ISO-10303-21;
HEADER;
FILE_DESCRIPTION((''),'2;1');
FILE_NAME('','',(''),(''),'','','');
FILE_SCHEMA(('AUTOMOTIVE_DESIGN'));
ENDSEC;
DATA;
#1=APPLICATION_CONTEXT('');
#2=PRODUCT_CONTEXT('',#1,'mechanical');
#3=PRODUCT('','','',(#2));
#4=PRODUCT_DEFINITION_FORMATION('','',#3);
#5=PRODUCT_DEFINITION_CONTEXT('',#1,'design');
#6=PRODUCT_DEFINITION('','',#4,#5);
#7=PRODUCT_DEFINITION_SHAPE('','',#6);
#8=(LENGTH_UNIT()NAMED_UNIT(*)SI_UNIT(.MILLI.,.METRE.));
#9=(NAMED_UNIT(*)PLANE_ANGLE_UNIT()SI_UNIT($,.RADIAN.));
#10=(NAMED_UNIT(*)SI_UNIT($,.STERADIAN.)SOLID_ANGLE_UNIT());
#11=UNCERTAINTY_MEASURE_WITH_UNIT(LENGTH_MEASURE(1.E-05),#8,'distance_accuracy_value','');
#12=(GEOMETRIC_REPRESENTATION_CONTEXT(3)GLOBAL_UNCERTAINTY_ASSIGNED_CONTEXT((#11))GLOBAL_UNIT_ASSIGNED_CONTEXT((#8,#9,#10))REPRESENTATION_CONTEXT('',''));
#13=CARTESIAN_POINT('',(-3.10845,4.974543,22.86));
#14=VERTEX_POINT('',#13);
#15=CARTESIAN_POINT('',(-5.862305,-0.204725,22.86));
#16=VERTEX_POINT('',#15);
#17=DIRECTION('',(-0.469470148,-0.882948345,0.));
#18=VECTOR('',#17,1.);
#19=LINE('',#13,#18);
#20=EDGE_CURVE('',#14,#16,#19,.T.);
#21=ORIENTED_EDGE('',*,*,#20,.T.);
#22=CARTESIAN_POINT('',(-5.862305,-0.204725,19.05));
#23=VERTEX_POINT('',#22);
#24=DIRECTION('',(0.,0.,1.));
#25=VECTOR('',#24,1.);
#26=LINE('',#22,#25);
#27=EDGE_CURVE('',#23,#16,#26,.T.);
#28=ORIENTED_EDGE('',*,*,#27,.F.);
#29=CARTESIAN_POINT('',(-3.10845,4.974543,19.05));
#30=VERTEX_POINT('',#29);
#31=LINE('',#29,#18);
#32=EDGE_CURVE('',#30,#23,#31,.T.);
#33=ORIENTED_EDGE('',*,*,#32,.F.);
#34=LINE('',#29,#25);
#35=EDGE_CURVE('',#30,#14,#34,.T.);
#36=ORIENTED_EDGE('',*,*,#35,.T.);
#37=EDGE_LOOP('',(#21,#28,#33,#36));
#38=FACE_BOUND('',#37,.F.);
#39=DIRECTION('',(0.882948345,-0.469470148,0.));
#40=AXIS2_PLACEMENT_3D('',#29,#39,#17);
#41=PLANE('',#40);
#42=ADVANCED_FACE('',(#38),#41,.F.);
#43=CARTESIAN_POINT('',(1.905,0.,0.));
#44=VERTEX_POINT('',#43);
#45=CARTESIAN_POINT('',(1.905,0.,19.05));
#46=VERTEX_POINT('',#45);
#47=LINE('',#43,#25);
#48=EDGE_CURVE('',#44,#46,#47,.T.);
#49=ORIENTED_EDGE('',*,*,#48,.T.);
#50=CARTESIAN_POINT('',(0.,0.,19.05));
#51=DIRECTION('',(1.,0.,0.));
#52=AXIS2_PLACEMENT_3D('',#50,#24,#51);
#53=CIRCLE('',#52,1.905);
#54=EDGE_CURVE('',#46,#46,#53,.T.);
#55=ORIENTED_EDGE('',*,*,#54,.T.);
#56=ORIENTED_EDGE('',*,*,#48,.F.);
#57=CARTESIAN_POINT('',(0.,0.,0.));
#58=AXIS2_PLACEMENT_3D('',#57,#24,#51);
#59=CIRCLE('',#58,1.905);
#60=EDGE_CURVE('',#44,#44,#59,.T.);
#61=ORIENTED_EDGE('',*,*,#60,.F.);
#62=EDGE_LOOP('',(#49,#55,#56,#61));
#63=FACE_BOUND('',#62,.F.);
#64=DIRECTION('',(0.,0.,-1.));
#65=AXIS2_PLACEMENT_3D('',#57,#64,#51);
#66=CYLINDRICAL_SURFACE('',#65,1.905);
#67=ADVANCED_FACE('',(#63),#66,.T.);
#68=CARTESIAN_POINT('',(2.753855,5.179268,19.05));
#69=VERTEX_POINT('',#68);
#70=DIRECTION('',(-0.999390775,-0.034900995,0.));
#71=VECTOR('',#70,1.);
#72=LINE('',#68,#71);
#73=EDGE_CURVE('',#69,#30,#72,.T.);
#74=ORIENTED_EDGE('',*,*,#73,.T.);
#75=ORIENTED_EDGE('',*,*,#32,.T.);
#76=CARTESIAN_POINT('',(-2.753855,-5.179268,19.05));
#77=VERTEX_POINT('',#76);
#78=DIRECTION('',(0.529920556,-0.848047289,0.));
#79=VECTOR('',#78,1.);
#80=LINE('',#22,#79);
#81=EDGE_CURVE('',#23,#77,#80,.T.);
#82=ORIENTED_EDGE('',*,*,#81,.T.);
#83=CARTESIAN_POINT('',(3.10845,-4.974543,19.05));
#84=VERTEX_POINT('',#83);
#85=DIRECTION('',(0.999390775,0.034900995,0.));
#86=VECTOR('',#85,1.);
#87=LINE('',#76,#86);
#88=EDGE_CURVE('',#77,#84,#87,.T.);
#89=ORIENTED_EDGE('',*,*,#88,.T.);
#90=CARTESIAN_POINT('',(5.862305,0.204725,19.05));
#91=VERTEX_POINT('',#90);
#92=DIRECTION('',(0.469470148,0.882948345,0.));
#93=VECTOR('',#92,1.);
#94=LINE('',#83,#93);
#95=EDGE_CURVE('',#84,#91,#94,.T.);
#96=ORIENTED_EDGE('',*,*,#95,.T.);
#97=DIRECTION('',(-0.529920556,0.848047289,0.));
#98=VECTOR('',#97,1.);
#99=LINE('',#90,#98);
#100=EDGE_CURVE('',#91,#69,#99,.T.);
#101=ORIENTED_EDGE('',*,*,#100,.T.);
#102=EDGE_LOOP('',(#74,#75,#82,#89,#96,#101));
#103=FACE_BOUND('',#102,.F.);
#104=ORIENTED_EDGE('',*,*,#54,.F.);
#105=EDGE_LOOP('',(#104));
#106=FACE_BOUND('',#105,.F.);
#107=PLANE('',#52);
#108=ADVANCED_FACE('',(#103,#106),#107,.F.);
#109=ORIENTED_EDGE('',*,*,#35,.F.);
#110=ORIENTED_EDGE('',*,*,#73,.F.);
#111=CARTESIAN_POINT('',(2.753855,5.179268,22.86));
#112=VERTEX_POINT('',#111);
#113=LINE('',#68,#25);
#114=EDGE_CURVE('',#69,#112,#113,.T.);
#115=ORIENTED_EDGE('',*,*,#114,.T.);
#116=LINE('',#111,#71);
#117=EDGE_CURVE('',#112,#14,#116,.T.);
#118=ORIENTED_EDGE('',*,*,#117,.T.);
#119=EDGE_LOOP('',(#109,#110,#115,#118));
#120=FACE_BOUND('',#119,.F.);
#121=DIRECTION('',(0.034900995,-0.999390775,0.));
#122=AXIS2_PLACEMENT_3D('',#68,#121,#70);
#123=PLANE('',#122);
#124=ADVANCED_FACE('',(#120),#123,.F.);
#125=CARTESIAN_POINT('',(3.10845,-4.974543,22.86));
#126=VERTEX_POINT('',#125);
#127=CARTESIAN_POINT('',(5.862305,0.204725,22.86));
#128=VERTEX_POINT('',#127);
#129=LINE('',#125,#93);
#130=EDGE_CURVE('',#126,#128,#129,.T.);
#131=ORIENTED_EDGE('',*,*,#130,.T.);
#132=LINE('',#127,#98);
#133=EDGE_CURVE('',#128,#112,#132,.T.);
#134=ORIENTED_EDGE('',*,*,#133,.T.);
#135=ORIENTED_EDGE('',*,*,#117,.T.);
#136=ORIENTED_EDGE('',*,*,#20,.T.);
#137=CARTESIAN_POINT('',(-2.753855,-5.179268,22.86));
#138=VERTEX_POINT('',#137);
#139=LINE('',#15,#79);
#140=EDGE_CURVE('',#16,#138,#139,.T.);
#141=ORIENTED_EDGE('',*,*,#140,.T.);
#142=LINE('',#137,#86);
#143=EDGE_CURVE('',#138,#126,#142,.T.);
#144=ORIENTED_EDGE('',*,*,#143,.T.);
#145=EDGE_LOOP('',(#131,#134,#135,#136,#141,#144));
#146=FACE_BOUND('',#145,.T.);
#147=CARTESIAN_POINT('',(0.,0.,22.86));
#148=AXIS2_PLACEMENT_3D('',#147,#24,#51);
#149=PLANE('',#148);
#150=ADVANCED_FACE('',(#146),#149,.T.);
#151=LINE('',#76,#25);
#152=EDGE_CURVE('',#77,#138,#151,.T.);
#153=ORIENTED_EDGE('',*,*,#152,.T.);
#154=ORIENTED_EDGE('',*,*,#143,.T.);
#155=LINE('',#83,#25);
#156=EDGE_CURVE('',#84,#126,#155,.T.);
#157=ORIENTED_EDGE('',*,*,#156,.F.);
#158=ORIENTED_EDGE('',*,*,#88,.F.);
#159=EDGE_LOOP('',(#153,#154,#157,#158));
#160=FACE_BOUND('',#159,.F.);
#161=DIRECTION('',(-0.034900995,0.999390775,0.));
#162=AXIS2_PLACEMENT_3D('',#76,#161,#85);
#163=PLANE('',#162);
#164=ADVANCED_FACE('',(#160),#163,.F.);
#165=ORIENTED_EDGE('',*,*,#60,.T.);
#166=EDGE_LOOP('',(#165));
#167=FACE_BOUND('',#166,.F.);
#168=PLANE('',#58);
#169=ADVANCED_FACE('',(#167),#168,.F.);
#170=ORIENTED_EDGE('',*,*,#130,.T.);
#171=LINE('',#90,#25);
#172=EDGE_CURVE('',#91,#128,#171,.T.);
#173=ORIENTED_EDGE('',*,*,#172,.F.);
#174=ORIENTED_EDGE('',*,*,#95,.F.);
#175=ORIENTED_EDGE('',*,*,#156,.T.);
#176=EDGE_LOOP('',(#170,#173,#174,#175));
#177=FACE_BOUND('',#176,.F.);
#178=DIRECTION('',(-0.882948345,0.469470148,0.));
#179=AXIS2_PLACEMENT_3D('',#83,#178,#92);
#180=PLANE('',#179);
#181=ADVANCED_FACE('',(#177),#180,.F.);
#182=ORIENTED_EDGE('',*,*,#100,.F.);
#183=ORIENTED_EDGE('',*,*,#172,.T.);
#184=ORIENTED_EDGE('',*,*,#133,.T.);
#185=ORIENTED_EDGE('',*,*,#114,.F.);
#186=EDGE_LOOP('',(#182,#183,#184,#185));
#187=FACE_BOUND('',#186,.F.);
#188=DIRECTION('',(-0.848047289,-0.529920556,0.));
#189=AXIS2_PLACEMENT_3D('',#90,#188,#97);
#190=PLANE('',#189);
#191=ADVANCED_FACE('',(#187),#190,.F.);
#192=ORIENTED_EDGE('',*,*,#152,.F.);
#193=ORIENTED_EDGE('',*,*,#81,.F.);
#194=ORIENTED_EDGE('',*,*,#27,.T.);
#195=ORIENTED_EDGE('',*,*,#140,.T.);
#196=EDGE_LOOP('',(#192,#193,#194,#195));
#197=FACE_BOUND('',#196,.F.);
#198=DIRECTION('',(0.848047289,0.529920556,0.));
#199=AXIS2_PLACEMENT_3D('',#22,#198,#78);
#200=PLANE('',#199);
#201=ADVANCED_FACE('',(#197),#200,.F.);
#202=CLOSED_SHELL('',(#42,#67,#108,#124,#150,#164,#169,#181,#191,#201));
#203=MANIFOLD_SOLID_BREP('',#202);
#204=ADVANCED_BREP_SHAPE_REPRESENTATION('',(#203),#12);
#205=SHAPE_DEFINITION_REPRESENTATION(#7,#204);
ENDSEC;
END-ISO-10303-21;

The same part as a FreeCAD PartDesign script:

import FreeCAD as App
import Part
import Sketcher
from FreeCAD import Vector
Q = App.Units.Quantity

doc = App.newDocument("Part")
body = doc.addObject("PartDesign::Body", "Body")

# Sketch on XY plane
sketch1 = doc.addObject("Sketcher::SketchObject", "Sketch")
body.addObject(sketch1)
sketch1.AttachmentSupport = (doc.XY_Plane, [""])
sketch1.MapMode = "FlatFace"
sketch1.addGeometry(Part.Circle(Vector(0, 0, 0), Vector(0, 0, 1), 1.905), False)
sketch1.addConstraint([
    Sketcher.Constraint("Coincident", 0, 3, -1, 1),
    Sketcher.Constraint("Diameter", 0, Q("0.15 in")),
])
pad1 = doc.addObject("PartDesign::Pad", "Pad")
body.addObject(pad1)
pad1.Profile = sketch1
pad1.Length = Q("0.75 in")

# Sketch on XY plane
sketch2 = doc.addObject("Sketcher::SketchObject", "Sketch001")
body.addObject(sketch2)
sketch2.AttachmentSupport = (doc.XY_Plane, [""])
sketch2.MapMode = "FlatFace"
sketch2.AttachmentOffset = App.Placement(Vector(0, 0, 0.75 * 25.4), App.Rotation())
sketch2.addGeometry([
    Part.LineSegment(Vector(5.862305, 0.204725, 0), Vector(2.753855, 5.179268, 0)),  # 0
    Part.LineSegment(Vector(2.753855, 5.179268, 0), Vector(-3.10845, 4.974543, 0)),  # 1
    Part.LineSegment(Vector(-3.10845, 4.974543, 0), Vector(-5.862305, -0.204725, 0)),  # 2
    Part.LineSegment(Vector(-5.862305, -0.204725, 0), Vector(-2.753855, -5.179268, 0)),  # 3
    Part.LineSegment(Vector(-2.753855, -5.179268, 0), Vector(3.10845, -4.974543, 0)),  # 4
    Part.LineSegment(Vector(3.10845, -4.974543, 0), Vector(5.862305, 0.204725, 0)),  # 5
], False)
sketch2.addConstraint([
    Sketcher.Constraint("Coincident", 0, 2, 1, 1),
    Sketcher.Constraint("Coincident", 1, 2, 2, 1),
    Sketcher.Constraint("Coincident", 2, 2, 3, 1),
    Sketcher.Constraint("Coincident", 3, 2, 4, 1),
    Sketcher.Constraint("Coincident", 4, 2, 5, 1),
    Sketcher.Constraint("Coincident", 5, 2, 0, 1),
    Sketcher.Constraint("Symmetric", 0, 2, 3, 2, -1, 1),
    Sketcher.Constraint("Symmetric", 1, 2, 4, 2, -1, 1),
    Sketcher.Constraint("Symmetric", 2, 2, 5, 2, -1, 1),
    Sketcher.Constraint("Equal", 0, 1),
    Sketcher.Constraint("Equal", 1, 2),
    Sketcher.Constraint("DistanceX", 1, 2, 4, 2, 6.2169),
    Sketcher.Constraint("Distance", 0, 5.865879),
    Sketcher.Constraint("DistanceY", -1, 1, 0, 2, 5.179268),
    Sketcher.Constraint("DistanceX", 2, 2, 0, 2, 8.61616),
])
pad2 = doc.addObject("PartDesign::Pad", "Pad001")
body.addObject(pad2)
pad2.Profile = sketch2
pad2.Length = Q("0.15 in")

doc.recompute()
